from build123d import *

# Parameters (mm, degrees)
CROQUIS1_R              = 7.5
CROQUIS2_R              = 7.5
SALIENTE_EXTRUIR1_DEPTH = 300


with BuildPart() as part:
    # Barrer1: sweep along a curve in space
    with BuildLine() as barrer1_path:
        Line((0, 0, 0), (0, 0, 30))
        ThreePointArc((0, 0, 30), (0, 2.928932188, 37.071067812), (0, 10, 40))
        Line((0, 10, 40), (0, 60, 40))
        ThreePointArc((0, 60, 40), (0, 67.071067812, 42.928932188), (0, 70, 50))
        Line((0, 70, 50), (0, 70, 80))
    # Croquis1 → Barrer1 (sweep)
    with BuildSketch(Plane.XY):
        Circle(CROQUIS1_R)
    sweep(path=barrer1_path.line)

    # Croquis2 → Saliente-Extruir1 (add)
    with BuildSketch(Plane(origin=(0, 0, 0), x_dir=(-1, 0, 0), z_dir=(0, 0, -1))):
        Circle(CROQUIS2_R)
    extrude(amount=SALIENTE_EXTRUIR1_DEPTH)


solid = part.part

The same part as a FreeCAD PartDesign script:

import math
import FreeCAD as App
import Part
import Sketcher

doc = App.newDocument("Part")
body = doc.addObject("PartDesign::Body", "Body")

# Sketch on XY plane
sketch1 = body.newObject("Sketcher::SketchObject", "Sketch")
sketch1.AttachmentSupport = (doc.getObject("XY_Plane"), [""])
sketch1.MapMode = "FlatFace"
sketch1.addGeometry(Part.Circle(App.Vector(0, 0, 0), App.Vector(0, 0, 1), 8), False)
sketch1.addConstraint([
    Sketcher.Constraint("Coincident", 0, 3, -1, 1),
    Sketcher.Constraint("Diameter", 0, 15.0),
])

# Sketch on YZ plane
sketch2 = body.newObject("Sketcher::SketchObject", "Sketch001")
sketch2.AttachmentSupport = (doc.getObject("YZ_Plane"), [""])
sketch2.MapMode = "FlatFace"
sketch2.addGeometry([
    Part.LineSegment(App.Vector(0, 0, 0), App.Vector(0, 30, 0)),  # 0
    Part.ArcOfCircle(Part.Circle(App.Vector(10, 30, 0), App.Vector(0, 0, 1), 10), math.radians(90), math.radians(180)),  # 1
    Part.LineSegment(App.Vector(10, 40, 0), App.Vector(60, 40, 0)),  # 2
    Part.ArcOfCircle(Part.Circle(App.Vector(60, 50, 0), App.Vector(0, 0, 1), 10), math.radians(-90), math.radians(0)),  # 3
    Part.LineSegment(App.Vector(70, 50, 0), App.Vector(70, 80, 0)),  # 4
], False)
sketch2.addConstraint([
    Sketcher.Constraint("Tangent", 0, 2, 1, 2),
    Sketcher.Constraint("Tangent", 1, 1, 2, 1),
    Sketcher.Constraint("Tangent", 2, 2, 3, 1),
    Sketcher.Constraint("Tangent", 3, 2, 4, 1),
    Sketcher.Constraint("Vertical", 0),
    Sketcher.Constraint("Horizontal", 2),
    Sketcher.Constraint("Vertical", 4),
    Sketcher.Constraint("Coincident", 0, 1, -1, 1),
    Sketcher.Constraint("Equal", 1, 3),
    Sketcher.Constraint("Equal", 0, 4),
    Sketcher.Constraint("Radius", 1, 10.0),
    Sketcher.Constraint("DistanceX", 2, 1, 2, 2, 50.0),
    Sketcher.Constraint("DistanceY", 0, 1, 0, 2, 30.0),
])
doc.recompute()

additivepipe = body.newObject("PartDesign::AdditivePipe", "AdditivePipe")
additivepipe.Profile = sketch1
additivepipe.Spine = (sketch2, ["Edge1", "Edge2", "Edge3", "Edge4", "Edge5"])

# Sketch on XY plane
sketch3 = body.newObject("Sketcher::SketchObject", "Sketch002")
sketch3.AttachmentSupport = (doc.getObject("XY_Plane"), [""])
sketch3.MapMode = "FlatFace"
sketch3.addGeometry(Part.Circle(App.Vector(0, 0, 0), App.Vector(0, 0, 1), 8), False)
sketch3.addConstraint([
    Sketcher.Constraint("Coincident", 0, 3, -1, 1),
    Sketcher.Constraint("Diameter", 0, 15.0),
])
pad1 = body.newObject("PartDesign::Pad", "Pad")
pad1.Profile = sketch3
pad1.Length = 300
pad1.Reversed = True

doc.recompute()
